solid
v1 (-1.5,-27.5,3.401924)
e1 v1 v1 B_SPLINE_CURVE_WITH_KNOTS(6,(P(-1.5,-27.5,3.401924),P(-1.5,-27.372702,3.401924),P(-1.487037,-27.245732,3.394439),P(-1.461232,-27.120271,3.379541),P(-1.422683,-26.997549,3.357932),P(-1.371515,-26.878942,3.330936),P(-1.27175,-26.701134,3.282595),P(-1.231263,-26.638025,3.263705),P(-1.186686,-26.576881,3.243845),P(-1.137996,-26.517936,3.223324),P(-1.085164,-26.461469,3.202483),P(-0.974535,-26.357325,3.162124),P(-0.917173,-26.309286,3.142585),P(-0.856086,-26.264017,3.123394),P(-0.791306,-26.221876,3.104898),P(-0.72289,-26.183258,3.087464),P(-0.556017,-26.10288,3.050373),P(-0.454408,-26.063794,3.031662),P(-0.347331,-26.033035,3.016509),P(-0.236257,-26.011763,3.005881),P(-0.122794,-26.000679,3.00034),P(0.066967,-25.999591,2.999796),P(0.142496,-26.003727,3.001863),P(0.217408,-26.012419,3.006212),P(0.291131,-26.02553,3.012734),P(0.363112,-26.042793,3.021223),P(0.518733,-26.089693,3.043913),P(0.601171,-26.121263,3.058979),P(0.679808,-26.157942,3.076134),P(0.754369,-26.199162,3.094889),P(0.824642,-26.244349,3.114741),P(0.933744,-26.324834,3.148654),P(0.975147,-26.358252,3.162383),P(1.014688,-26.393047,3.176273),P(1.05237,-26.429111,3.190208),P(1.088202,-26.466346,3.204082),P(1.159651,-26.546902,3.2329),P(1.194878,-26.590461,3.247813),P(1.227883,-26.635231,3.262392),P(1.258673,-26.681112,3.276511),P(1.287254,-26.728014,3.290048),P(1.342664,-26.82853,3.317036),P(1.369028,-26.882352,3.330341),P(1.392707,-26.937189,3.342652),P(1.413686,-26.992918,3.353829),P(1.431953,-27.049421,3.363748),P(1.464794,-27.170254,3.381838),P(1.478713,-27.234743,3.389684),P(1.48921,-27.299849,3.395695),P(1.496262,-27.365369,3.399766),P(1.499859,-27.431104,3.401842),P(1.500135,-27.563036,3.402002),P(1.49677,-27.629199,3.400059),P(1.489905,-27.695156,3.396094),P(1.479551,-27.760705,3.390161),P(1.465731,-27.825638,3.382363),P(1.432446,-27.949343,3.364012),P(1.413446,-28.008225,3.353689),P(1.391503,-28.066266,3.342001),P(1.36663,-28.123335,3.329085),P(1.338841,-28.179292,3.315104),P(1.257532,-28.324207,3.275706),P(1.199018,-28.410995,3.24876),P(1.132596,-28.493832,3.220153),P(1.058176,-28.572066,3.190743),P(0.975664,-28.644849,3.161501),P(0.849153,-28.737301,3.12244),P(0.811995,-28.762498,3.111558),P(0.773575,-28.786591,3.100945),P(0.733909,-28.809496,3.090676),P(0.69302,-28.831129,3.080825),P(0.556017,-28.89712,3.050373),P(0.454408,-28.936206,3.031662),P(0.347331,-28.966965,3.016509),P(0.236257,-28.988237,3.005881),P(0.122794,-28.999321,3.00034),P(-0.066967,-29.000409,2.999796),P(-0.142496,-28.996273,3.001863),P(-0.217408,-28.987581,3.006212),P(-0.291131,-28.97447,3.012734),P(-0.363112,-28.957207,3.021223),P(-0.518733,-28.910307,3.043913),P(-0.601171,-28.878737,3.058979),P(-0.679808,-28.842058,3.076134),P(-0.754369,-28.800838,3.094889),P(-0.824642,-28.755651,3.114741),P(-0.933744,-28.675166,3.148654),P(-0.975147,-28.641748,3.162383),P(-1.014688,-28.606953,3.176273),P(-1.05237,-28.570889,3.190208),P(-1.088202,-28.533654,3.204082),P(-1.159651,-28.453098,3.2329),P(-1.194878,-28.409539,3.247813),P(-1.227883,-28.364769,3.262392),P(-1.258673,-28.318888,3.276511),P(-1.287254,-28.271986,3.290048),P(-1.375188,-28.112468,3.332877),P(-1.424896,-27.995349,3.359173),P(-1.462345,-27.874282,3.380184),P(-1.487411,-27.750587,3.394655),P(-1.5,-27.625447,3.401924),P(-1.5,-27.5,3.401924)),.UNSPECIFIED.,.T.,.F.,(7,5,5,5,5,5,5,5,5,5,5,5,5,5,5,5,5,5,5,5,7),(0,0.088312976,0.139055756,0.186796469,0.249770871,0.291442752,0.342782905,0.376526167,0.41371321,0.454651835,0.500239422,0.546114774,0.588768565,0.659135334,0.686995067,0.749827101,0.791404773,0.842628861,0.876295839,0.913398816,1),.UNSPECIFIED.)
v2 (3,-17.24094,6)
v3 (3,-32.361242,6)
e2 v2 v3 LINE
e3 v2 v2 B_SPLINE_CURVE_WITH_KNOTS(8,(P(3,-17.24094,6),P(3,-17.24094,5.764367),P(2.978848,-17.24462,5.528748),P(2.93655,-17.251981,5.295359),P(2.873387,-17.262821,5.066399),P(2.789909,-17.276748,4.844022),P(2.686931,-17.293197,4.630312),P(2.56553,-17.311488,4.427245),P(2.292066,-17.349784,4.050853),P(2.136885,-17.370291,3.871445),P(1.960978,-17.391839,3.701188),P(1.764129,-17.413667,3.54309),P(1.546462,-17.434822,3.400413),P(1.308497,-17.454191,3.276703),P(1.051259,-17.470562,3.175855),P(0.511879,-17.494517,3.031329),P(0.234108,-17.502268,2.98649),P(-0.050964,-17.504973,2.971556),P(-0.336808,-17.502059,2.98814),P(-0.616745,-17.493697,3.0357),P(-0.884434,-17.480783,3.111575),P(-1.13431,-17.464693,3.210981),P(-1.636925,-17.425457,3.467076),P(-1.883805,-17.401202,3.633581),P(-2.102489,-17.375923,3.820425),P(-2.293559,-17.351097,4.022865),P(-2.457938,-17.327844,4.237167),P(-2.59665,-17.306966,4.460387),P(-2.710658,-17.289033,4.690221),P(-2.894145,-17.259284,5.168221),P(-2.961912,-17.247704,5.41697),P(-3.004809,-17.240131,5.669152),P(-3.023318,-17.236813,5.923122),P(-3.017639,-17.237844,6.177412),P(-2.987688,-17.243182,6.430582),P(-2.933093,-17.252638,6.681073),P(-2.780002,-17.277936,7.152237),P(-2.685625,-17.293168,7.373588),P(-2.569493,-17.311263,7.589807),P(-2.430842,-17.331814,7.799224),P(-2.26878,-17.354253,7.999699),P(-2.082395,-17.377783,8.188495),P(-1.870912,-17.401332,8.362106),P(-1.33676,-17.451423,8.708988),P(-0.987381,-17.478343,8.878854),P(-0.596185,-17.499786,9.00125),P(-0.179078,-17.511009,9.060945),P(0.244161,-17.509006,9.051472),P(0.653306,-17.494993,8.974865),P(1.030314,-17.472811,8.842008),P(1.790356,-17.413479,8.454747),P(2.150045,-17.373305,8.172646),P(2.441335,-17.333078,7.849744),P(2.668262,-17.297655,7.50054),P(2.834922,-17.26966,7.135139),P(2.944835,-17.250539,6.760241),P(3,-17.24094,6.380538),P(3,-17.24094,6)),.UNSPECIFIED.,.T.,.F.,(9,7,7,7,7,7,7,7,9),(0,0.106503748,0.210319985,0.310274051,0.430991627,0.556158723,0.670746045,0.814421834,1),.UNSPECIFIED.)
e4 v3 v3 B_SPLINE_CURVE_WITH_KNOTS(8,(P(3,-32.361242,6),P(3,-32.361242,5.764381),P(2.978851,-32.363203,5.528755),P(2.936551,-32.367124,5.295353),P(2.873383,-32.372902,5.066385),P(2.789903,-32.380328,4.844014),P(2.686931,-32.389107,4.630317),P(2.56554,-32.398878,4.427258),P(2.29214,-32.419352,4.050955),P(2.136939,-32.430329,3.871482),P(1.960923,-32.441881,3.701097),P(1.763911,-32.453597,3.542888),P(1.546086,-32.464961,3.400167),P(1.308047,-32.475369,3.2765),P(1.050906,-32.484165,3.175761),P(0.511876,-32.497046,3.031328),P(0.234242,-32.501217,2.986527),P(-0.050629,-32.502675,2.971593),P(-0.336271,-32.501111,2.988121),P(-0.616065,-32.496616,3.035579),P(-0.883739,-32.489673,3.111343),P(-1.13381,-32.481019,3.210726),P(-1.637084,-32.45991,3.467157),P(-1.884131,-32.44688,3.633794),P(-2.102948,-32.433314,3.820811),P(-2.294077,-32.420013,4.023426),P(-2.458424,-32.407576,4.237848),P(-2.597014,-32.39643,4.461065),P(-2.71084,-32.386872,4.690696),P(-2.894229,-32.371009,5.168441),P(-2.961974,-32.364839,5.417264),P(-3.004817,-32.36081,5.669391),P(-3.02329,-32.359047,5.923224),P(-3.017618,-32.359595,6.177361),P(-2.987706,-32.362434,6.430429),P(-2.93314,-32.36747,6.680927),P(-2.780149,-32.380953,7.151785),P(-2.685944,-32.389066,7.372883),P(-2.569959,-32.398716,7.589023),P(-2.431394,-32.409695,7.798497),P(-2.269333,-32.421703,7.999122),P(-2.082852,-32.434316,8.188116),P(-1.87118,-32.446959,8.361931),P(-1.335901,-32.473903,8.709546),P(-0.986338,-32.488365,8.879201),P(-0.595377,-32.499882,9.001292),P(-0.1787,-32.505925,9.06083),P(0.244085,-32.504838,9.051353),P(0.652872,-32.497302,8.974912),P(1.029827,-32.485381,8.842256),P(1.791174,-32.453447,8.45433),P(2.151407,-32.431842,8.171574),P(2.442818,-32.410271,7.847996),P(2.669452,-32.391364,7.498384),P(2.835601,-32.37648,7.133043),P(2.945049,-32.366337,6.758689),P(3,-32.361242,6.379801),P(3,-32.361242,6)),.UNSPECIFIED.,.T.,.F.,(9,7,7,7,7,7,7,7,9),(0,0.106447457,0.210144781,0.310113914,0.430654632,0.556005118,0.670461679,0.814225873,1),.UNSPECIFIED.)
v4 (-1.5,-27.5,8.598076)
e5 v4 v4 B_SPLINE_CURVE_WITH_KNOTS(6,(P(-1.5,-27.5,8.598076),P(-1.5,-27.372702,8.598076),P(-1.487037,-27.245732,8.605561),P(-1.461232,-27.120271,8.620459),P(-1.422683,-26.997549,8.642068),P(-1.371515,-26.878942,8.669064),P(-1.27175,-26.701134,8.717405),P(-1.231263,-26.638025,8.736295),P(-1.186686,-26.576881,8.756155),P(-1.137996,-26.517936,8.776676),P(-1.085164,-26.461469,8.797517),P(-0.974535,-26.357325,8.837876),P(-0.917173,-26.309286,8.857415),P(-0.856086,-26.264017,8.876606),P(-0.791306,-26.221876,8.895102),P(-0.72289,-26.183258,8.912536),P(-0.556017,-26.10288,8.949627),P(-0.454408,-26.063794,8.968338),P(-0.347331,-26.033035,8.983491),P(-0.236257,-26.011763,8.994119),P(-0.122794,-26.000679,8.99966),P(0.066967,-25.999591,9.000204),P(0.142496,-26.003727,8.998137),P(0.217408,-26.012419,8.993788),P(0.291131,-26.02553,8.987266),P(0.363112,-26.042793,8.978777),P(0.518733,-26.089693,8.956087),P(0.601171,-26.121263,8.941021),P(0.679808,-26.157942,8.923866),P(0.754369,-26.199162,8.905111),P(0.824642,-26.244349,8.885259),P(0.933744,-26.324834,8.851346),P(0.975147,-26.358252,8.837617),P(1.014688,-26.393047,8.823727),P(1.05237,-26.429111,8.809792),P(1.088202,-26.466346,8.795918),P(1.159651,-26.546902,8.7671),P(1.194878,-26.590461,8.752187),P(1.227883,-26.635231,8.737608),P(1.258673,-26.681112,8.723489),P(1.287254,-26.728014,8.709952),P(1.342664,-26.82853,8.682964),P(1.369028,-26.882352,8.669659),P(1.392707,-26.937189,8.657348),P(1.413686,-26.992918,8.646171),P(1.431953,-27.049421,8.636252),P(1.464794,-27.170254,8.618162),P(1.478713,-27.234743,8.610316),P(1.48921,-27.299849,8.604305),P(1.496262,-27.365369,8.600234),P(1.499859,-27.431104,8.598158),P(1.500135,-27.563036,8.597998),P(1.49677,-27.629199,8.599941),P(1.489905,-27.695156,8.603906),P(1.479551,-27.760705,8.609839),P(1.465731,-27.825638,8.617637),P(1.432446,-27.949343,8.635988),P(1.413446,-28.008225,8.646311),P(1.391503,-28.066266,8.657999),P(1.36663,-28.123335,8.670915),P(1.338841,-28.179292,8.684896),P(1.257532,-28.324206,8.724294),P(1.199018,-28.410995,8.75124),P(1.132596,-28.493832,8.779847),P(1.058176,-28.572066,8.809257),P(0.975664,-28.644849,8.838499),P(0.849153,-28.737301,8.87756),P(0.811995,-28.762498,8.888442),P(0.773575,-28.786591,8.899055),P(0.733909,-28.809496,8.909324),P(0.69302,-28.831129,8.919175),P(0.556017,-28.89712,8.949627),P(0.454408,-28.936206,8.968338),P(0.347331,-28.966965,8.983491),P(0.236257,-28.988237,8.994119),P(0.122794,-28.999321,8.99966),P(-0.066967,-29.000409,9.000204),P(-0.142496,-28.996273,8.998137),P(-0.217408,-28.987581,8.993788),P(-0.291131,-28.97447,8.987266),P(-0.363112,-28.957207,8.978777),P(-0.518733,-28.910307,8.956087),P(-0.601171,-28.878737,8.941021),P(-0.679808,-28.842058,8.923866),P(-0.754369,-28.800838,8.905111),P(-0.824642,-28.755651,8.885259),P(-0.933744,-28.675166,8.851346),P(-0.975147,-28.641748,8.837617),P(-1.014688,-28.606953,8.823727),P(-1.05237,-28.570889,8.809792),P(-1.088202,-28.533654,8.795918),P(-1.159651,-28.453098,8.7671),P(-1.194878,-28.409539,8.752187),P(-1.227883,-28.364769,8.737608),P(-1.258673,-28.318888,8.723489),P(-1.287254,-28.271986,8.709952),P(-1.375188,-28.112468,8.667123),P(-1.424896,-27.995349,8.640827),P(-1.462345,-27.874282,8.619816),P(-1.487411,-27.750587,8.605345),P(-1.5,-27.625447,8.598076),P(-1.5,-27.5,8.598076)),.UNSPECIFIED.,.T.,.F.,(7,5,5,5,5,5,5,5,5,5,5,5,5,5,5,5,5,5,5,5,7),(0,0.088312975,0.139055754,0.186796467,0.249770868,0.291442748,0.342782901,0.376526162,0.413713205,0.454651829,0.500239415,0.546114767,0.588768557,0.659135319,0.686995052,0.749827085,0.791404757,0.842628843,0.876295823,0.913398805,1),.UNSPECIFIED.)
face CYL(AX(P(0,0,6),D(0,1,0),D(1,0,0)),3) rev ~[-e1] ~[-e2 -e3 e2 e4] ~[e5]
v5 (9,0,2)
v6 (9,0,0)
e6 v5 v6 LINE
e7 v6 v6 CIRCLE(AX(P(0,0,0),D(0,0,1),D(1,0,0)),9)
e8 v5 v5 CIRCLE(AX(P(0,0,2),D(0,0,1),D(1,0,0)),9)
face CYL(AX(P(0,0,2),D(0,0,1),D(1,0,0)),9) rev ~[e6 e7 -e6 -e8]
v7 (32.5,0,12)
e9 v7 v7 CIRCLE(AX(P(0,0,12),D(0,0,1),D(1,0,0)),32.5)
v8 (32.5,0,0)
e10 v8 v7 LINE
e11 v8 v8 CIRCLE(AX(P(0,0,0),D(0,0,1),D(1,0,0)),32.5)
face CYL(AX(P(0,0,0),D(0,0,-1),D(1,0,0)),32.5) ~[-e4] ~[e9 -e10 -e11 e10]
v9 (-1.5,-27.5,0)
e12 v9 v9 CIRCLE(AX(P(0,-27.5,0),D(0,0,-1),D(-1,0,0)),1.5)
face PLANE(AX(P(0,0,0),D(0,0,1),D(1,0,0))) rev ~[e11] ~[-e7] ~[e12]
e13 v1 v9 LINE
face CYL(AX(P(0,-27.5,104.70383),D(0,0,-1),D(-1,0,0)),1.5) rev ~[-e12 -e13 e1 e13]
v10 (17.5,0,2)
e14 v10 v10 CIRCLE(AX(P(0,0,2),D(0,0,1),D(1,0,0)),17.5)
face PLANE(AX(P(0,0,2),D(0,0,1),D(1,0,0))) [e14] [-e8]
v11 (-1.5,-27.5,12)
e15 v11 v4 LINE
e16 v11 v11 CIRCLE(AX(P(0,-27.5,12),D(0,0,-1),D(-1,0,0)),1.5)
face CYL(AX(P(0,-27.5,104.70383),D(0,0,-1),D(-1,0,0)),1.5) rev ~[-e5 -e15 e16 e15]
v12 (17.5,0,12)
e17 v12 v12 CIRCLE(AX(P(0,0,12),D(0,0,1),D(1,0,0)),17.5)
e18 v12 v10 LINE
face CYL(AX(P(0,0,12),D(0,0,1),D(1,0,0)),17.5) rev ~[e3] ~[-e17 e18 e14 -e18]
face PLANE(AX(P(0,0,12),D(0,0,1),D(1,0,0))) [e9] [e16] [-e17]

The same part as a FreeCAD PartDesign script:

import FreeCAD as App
import Part
import Sketcher

doc = App.newDocument("Part")
body = doc.addObject("PartDesign::Body", "Body")

# Sketch on XY plane
sketch1 = doc.addObject("Sketcher::SketchObject", "Sketch")
body.addObject(sketch1)
sketch1.AttachmentSupport = (doc.XY_Plane, [""])
sketch1.MapMode = "FlatFace"
sketch1.addGeometry(Part.Circle(App.Vector(0, 0, 0), App.Vector(0, 0, 1), 32), False)
sketch1.addConstraint([
    Sketcher.Constraint("Coincident", 0, 3, -1, 1),
    Sketcher.Constraint("Diameter", 0, 65.0),
])
pad1 = doc.addObject("PartDesign::Pad", "Pad")
body.addObject(pad1)
pad1.Profile = sketch1
pad1.Length = 12

# Sketch on XY plane
sketch2 = doc.addObject("Sketcher::SketchObject", "Sketch001")
body.addObject(sketch2)
sketch2.AttachmentSupport = (doc.XY_Plane, [""])
sketch2.MapMode = "FlatFace"
sketch2.AttachmentOffset = App.Placement(App.Vector(0, 0, 12), App.Rotation())
sketch2.addGeometry(Part.Circle(App.Vector(0, 0, 0), App.Vector(0, 0, 1), 18), False)
sketch2.addConstraint([
    Sketcher.Constraint("Coincident", 0, 3, -1, 1),
    Sketcher.Constraint("Diameter", 0, 35.0),
])
pocket1 = doc.addObject("PartDesign::Pocket", "Pocket")
body.addObject(pocket1)
pocket1.Profile = sketch2
pocket1.Length = 10

# Sketch on XY plane
sketch3 = doc.addObject("Sketcher::SketchObject", "Sketch002")
body.addObject(sketch3)
sketch3.AttachmentSupport = (doc.XY_Plane, [""])
sketch3.MapMode = "FlatFace"
sketch3.AttachmentOffset = App.Placement(App.Vector(0, 0, 2), App.Rotation())
sketch3.addGeometry(Part.Circle(App.Vector(0, 0, 0), App.Vector(0, 0, 1), 9), False)
sketch3.addConstraint([
    Sketcher.Constraint("Coincident", 0, 3, -1, 1),
    Sketcher.Constraint("Diameter", 0, 18.0),
])
pocket2 = doc.addObject("PartDesign::Pocket", "Pocket001")
body.addObject(pocket2)
pocket2.Profile = sketch3
pocket2.Length = 2000

# Sketch on XZ plane
sketch4 = doc.addObject("Sketcher::SketchObject", "Sketch003")
body.addObject(sketch4)
sketch4.AttachmentSupport = (doc.XZ_Plane, [""])
sketch4.MapMode = "FlatFace"
sketch4.addGeometry(Part.Circle(App.Vector(0, 6, 0), App.Vector(0, 0, 1), 3), False)
sketch4.addConstraint([
    Sketcher.Constraint("PointOnObject", 0, 3, -2),
    Sketcher.Constraint("Diameter", 0, 6.0),
    Sketcher.Constraint("DistanceY", -1, 1, 0, 3, 6.0),
])
pocket3 = doc.addObject("PartDesign::Pocket", "Pocket002")
body.addObject(pocket3)
pocket3.Profile = sketch4
pocket3.Type = "ThroughAll"
pocket3.Reversed = True

# Sketch on XY plane
sketch5 = doc.addObject("Sketcher::SketchObject", "Sketch004")
body.addObject(sketch5)
sketch5.AttachmentSupport = (doc.XY_Plane, [""])
sketch5.MapMode = "FlatFace"
sketch5.AttachmentOffset = App.Placement(App.Vector(0, 0, 12), App.Rotation())
sketch5.addGeometry(Part.Circle(App.Vector(0, -27.5, 0), App.Vector(0, 0, 1), 1.5), False)
sketch5.addConstraint([
    Sketcher.Constraint("PointOnObject", 0, 3, -2),
    Sketcher.Constraint("Diameter", 0, 3.0),
    Sketcher.Constraint("DistanceY", 0, 3, -1, 1, 27.5),
])
doc.recompute()
hole = doc.addObject("PartDesign::Hole", "Hole")
body.addObject(hole)
hole.Profile = sketch5
hole.ThreadType = "None"
hole.Diameter = 3
hole.DepthType = "ThroughAll"

doc.recompute()
